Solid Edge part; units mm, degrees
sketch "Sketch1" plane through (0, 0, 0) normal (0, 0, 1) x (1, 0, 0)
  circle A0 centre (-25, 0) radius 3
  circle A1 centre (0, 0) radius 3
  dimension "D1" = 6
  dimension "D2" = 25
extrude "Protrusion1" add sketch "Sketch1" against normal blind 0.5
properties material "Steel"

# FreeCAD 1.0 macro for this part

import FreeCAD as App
import Part
import Sketcher

V = App.Vector

doc = App.newDocument("Part")
body = doc.addObject("PartDesign::Body", "Body")
body.AllowCompound = True

# Sketch on XY plane
sketch1 = body.newObject("Sketcher::SketchObject", "Sketch")
sketch1.AttachmentSupport = (doc.getObject("XY_Plane"), [""])
sketch1.MapMode = "FlatFace"
sketch1.addGeometry(Part.Circle(V(-25, 0, 0), V(0, 0, 1), 3), False)
sketch1.addGeometry(Part.Circle(V(0, 0, 0), V(0, 0, 1), 3), False)
sketch1.addConstraint(Sketcher.Constraint("Coincident", 1, 3, -1, 1))
sketch1.addConstraint(Sketcher.Constraint("Equal", 0, 1))
sketch1.addConstraint(Sketcher.Constraint("PointOnObject", 0, 3, -1))
sketch1.addConstraint(Sketcher.Constraint("Diameter", 0, 6.0))
sketch1.addConstraint(Sketcher.Constraint("DistanceX", 0, 3, -1, 1, 25.0))
pad1 = body.newObject("PartDesign::Pad", "Pad")
pad1.Profile = sketch1
pad1.Length = 0.5
pad1.Reversed = True

doc.recompute()
